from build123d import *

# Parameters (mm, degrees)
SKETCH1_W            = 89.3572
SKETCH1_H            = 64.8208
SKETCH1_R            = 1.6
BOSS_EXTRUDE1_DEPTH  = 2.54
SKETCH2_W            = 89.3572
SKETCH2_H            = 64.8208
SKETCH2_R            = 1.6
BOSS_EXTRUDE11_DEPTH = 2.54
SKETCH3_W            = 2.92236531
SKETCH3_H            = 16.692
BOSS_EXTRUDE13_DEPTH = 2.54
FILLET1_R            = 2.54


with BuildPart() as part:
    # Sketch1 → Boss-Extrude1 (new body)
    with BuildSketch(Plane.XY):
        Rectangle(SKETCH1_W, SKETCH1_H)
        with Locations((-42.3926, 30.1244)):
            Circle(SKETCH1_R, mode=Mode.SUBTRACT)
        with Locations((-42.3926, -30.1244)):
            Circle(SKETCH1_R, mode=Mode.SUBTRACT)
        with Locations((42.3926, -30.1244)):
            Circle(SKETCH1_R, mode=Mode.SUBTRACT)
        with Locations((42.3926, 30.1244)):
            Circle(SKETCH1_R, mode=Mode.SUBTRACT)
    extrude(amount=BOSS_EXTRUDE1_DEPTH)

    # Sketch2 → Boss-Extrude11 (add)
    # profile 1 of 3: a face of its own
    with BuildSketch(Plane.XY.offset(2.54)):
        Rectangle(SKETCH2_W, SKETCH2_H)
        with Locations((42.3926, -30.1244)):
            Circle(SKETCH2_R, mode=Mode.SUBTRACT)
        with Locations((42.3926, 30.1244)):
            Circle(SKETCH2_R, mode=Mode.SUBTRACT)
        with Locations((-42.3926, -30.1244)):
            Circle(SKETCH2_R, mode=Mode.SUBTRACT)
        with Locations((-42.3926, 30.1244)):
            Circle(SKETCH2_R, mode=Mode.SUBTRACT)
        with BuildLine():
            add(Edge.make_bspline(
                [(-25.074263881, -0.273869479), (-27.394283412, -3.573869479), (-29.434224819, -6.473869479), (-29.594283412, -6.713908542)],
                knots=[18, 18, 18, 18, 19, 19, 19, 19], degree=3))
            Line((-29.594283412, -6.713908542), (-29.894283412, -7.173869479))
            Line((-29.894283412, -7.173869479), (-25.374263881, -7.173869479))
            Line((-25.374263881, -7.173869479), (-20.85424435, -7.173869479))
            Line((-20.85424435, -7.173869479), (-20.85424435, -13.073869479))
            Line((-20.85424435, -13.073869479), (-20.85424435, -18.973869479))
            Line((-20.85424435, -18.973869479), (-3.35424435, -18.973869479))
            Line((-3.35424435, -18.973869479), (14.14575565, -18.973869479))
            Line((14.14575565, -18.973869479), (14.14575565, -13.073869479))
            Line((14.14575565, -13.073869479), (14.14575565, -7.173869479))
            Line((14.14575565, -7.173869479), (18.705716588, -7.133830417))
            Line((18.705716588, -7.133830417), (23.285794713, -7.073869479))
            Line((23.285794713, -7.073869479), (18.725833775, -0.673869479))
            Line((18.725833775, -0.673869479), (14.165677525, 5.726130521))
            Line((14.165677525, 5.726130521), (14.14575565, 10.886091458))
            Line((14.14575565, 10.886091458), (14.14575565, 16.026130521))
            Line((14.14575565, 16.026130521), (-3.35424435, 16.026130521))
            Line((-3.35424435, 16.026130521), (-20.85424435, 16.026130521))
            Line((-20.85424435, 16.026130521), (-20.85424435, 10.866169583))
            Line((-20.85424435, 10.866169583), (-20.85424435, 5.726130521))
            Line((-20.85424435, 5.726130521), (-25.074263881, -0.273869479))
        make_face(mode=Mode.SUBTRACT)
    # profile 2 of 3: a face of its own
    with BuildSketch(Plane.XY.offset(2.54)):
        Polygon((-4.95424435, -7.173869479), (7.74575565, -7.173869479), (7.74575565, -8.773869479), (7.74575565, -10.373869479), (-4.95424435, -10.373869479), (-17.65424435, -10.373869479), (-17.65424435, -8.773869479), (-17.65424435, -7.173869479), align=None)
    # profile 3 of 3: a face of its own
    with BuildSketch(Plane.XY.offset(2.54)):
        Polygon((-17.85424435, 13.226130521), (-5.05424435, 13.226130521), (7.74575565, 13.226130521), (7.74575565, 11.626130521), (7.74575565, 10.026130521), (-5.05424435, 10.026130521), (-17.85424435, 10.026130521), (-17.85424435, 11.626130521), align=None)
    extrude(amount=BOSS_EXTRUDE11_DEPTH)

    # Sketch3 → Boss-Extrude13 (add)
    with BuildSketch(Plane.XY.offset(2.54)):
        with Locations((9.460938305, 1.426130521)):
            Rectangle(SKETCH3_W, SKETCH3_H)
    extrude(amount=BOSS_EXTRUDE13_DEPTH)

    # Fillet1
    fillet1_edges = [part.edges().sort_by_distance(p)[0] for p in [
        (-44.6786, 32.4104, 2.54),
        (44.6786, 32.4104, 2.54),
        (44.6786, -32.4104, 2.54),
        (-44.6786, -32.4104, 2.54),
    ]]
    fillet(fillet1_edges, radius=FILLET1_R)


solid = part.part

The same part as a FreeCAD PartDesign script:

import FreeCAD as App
import Part
import Sketcher
from FreeCAD import Vector


def edges_at(feature, points):
    """Names of the edges that pass closest to the given points."""
    edges = feature.Shape.Edges
    near = lambda p: min(range(len(edges)), key=lambda i: edges[i].distToShape(Part.Vertex(*p))[0])
    return sorted({f"Edge{near(p) + 1}" for p in points})

doc = App.newDocument("Part")
params = doc.addObject("Spreadsheet::Sheet", "Params")
for row, (alias, value) in enumerate([
    ("sketch1_diameter", "3.2 mm"),
    ("pad1_length", "2.54 mm"),
    ("sketch2_diameter", "3.2 mm"),
    ("sketch2_width", "35 mm"),
    ("sketch2_width2", "25.4 mm"),
    ("sketch2_width3", "25.6 mm"),
    ("sketch2_height", "10.3 mm"),
    ("pad2_length", "2.54 mm"),
    ("pad3_length", "2.54 mm"),
    ("fillet_radius", "2.54 mm"),
], start=1):
    params.set(f"A{row}", alias)
    params.set(f"B{row}", "=" + value)
    params.setAlias(f"B{row}", alias)

body = doc.addObject("PartDesign::Body", "Body")

# Sketch on XY plane
sketch1 = body.newObject("Sketcher::SketchObject", "Sketch")
sketch1.AttachmentSupport = (doc.getObject("XY_Plane"), [""])
sketch1.MapMode = "FlatFace"
sketch1.addGeometry(Part.LineSegment(Vector(-44.7, 32.4, 0), Vector(-44.7, -32.4, 0)), False)
sketch1.addGeometry(Part.LineSegment(Vector(-44.7, -32.4, 0), Vector(44.7, -32.4, 0)), False)
sketch1.addGeometry(Part.LineSegment(Vector(44.7, -32.4, 0), Vector(44.7, 32.4, 0)), False)
sketch1.addGeometry(Part.LineSegment(Vector(44.7, 32.4, 0), Vector(-44.7, 32.4, 0)), False)
sketch1.addGeometry(Part.Circle(Vector(-42.4, -30.1, 0), Vector(0, 0, 1), 1.6), False)
sketch1.addGeometry(Part.Circle(Vector(42.4, -30.1, 0), Vector(0, 0, 1), 1.6), False)
sketch1.addGeometry(Part.Circle(Vector(-42.4, 30.1, 0), Vector(0, 0, 1), 1.6), False)
sketch1.addGeometry(Part.Circle(Vector(42.4, 30.1, 0), Vector(0, 0, 1), 1.6), False)
sketch1.addConstraint(Sketcher.Constraint("Coincident", 0, 2, 1, 1))
sketch1.addConstraint(Sketcher.Constraint("Coincident", 1, 2, 2, 1))
sketch1.addConstraint(Sketcher.Constraint("Coincident", 2, 2, 3, 1))
sketch1.addConstraint(Sketcher.Constraint("Coincident", 3, 2, 0, 1))
sketch1.addConstraint(Sketcher.Constraint("Vertical", 0))
sketch1.addConstraint(Sketcher.Constraint("Horizontal", 1))
sketch1.addConstraint(Sketcher.Constraint("Vertical", 2))
sketch1.addConstraint(Sketcher.Constraint("Horizontal", 3))
sketch1.addConstraint(Sketcher.Constraint("Equal", 4, 5))
sketch1.addConstraint(Sketcher.Constraint("Equal", 5, 6))
sketch1.addConstraint(Sketcher.Constraint("Equal", 6, 7))
sketch1.addConstraint(Sketcher.Constraint("Symmetric", 5, 3, 6, 3, -1, 1))
sketch1.addConstraint(Sketcher.Constraint("Symmetric", 4, 3, 7, 3, -1, 1))
sketch1.addConstraint(Sketcher.Constraint("Symmetric", 0, 2, 2, 2, -1, 1))
sketch1.addConstraint(Sketcher.Constraint("Symmetric", 4, 3, 5, 3, -2))
sketch1.addConstraint(Sketcher.Constraint("Diameter", 4, 3.2))
sketch1.addConstraint(Sketcher.Constraint("DistanceX", 1, 1, 1, 2, 89.3572))
sketch1.addConstraint(Sketcher.Constraint("DistanceY", 0, 2, 0, 1, 64.8208))
sketch1.addConstraint(Sketcher.Constraint("DistanceX", 0, 2, 4, 3, 2.286))
sketch1.addConstraint(Sketcher.Constraint("DistanceY", 0, 2, 4, 3, 2.286))
sketch1.setExpression("Constraints[15]", "Params.sketch1_diameter")
pad1 = body.newObject("PartDesign::Pad", "Pad")
pad1.Profile = sketch1
pad1.setExpression("Length", "Params.pad1_length")

# Sketch on XY plane
sketch2 = body.newObject("Sketcher::SketchObject", "Sketch001")
sketch2.AttachmentSupport = (doc.getObject("XY_Plane"), [""])
sketch2.MapMode = "FlatFace"
sketch2.AttachmentOffset = App.Placement(Vector(0, 0, 2.54), App.Rotation())
sketch2.addGeometry(Part.LineSegment(Vector(-44.6786, 32.4104, 0), Vector(-44.6786, -32.4104, 0)), False)
sketch2.addGeometry(Part.LineSegment(Vector(-44.6786, -32.4104, 0), Vector(44.6786, -32.4104, 0)), False)
sketch2.addGeometry(Part.LineSegment(Vector(44.6786, -32.4104, 0), Vector(44.6786, 32.4104, 0)), False)
sketch2.addGeometry(Part.LineSegment(Vector(44.6786, 32.4104, 0), Vector(-44.6786, 32.4104, 0)), False)
sketch2.addGeometry(Part.Circle(Vector(-42.3926, -30.1244, 0), Vector(0, 0, 1), 1.6), False)
sketch2.addGeometry(Part.BSplineCurve([Vector(-25.074264, -0.273869, 0), Vector(-27.394283, -3.573869, 0), Vector(-29.434225, -6.473869, 0), Vector(-29.594283, -6.713909, 0)], [4, 4], [18, 19], False, 3, [1, 1, 1, 1], False), False)
sketch2.addGeometry(Part.LineSegment(Vector(-25.074264, -0.273869, 0), Vector(-20.854244, 5.726131, 0)), False)
sketch2.addGeometry(Part.LineSegment(Vector(-20.854244, 5.726131, 0), Vector(-20.854244, 16.026131, 0)), False)
sketch2.addGeometry(Part.LineSegment(Vector(-20.854244, 16.026131, 0), Vector(14.145756, 16.026131, 0)), False)
sketch2.addGeometry(Part.LineSegment(Vector(14.145756, 16.026131, 0), Vector(14.145756, 10.886091, 0)), False)
sketch2.addGeometry(Part.LineSegment(Vector(14.145756, 10.886091, 0), Vector(14.165678, 5.726131, 0)), False)
sketch2.addGeometry(Part.LineSegment(Vector(14.165678, 5.726131, 0), Vector(18.725834, -0.673869, 0)), False)
sketch2.addGeometry(Part.LineSegment(Vector(18.725834, -0.673869, 0), Vector(23.285795, -7.073869, 0)), False)
sketch2.addGeometry(Part.LineSegment(Vector(23.285795, -7.073869, 0), Vector(18.705717, -7.13383, 0)), False)
sketch2.addGeometry(Part.LineSegment(Vector(18.705717, -7.13383, 0), Vector(14.145756, -7.173869, 0)), False)
sketch2.addGeometry(Part.LineSegment(Vector(14.145756, -7.173869, 0), Vector(14.145756, -18.973869, 0)), False)
sketch2.addGeometry(Part.LineSegment(Vector(14.145756, -18.973869, 0), Vector(-20.854244, -18.973869, 0)), False)
sketch2.addGeometry(Part.LineSegment(Vector(-20.854244, -18.973869, 0), Vector(-20.854244, -7.173869, 0)), False)
sketch2.addGeometry(Part.LineSegment(Vector(-20.854244, -7.173869, 0), Vector(-29.894283, -7.173869, 0)), False)
sketch2.addGeometry(Part.LineSegment(Vector(-29.894283, -7.173869, 0), Vector(-29.594283, -6.713909, 0)), False)
sketch2.addGeometry(Part.Circle(Vector(42.3926, -30.1244, 0), Vector(0, 0, 1), 1.6), False)
sketch2.addGeometry(Part.Circle(Vector(-42.3926, 30.1244, 0), Vector(0, 0, 1), 1.6), False)
sketch2.addGeometry(Part.Circle(Vector(42.3926, 30.1244, 0), Vector(0, 0, 1), 1.6), False)
sketch2.addGeometry(Part.LineSegment(Vector(7.745756, -7.173869, 0), Vector(-17.654244, -7.173869, 0)), False)
sketch2.addGeometry(Part.LineSegment(Vector(-17.654244, -7.173869, 0), Vector(-17.654244, -10.373869, 0)), False)
sketch2.addGeometry(Part.LineSegment(Vector(-17.654244, -10.373869, 0), Vector(7.745756, -10.373869, 0)), False)
sketch2.addGeometry(Part.LineSegment(Vector(7.745756, -10.373869, 0), Vector(7.745756, -7.173869, 0)), False)
sketch2.addGeometry(Part.LineSegment(Vector(7.745756, 13.226131, 0), Vector(-17.854244, 13.226131, 0)), False)
sketch2.addGeometry(Part.LineSegment(Vector(-17.854244, 13.226131, 0), Vector(-17.854244, 10.026131, 0)), False)
sketch2.addGeometry(Part.LineSegment(Vector(-17.854244, 10.026131, 0), Vector(7.745756, 10.026131, 0)), False)
sketch2.addGeometry(Part.LineSegment(Vector(7.745756, 10.026131, 0), Vector(7.745756, 13.226131, 0)), False)
sketch2.addConstraint(Sketcher.Constraint("Block", 5))
sketch2.addConstraint(Sketcher.Constraint("Coincident", 0, 2, 1, 1))
sketch2.addConstraint(Sketcher.Constraint("Coincident", 1, 2, 2, 1))
sketch2.addConstraint(Sketcher.Constraint("Coincident", 2, 2, 3, 1))
sketch2.addConstraint(Sketcher.Constraint("Coincident", 3, 2, 0, 1))
sketch2.addConstraint(Sketcher.Constraint("Coincident", 5, 1, 6, 1))
sketch2.addConstraint(Sketcher.Constraint("Coincident", 6, 2, 7, 1))
sketch2.addConstraint(Sketcher.Constraint("Coincident", 7, 2, 8, 1))
sketch2.addConstraint(Sketcher.Constraint("Coincident", 8, 2, 9, 1))
sketch2.addConstraint(Sketcher.Constraint("Coincident", 9, 2, 10, 1))
sketch2.addConstraint(Sketcher.Constraint("Coincident", 10, 2, 11, 1))
sketch2.addConstraint(Sketcher.Constraint("Coincident", 11, 2, 12, 1))
sketch2.addConstraint(Sketcher.Constraint("Coincident", 12, 2, 13, 1))
sketch2.addConstraint(Sketcher.Constraint("Coincident", 13, 2, 14, 1))
sketch2.addConstraint(Sketcher.Constraint("Coincident", 14, 2, 15, 1))
sketch2.addConstraint(Sketcher.Constraint("Coincident", 15, 2, 16, 1))
sketch2.addConstraint(Sketcher.Constraint("Coincident", 16, 2, 17, 1))
sketch2.addConstraint(Sketcher.Constraint("Coincident", 17, 2, 18, 1))
sketch2.addConstraint(Sketcher.Constraint("Coincident", 18, 2, 19, 1))
sketch2.addConstraint(Sketcher.Constraint("Coincident", 19, 2, 5, 2))
sketch2.addConstraint(Sketcher.Constraint("Coincident", 23, 2, 24, 1))
sketch2.addConstraint(Sketcher.Constraint("Coincident", 24, 2, 25, 1))
sketch2.addConstraint(Sketcher.Constraint("Coincident", 25, 2, 26, 1))
sketch2.addConstraint(Sketcher.Constraint("Coincident", 26, 2, 23, 1))
sketch2.addConstraint(Sketcher.Constraint("Coincident", 27, 2, 28, 1))
sketch2.addConstraint(Sketcher.Constraint("Coincident", 28, 2, 29, 1))
sketch2.addConstraint(Sketcher.Constraint("Coincident", 29, 2, 30, 1))
sketch2.addConstraint(Sketcher.Constraint("Coincident", 30, 2, 27, 1))
sketch2.addConstraint(Sketcher.Constraint("Vertical", 0))
sketch2.addConstraint(Sketcher.Constraint("Horizontal", 1))
sketch2.addConstraint(Sketcher.Constraint("Vertical", 2))
sketch2.addConstraint(Sketcher.Constraint("Horizontal", 3))
sketch2.addConstraint(Sketcher.Constraint("Vertical", 7))
sketch2.addConstraint(Sketcher.Constraint("Horizontal", 8))
sketch2.addConstraint(Sketcher.Constraint("Vertical", 9))
sketch2.addConstraint(Sketcher.Constraint("Vertical", 15))
sketch2.addConstraint(Sketcher.Constraint("Horizontal", 16))
sketch2.addConstraint(Sketcher.Constraint("Vertical", 17))
sketch2.addConstraint(Sketcher.Constraint("Horizontal", 18))
sketch2.addConstraint(Sketcher.Constraint("Horizontal", 23))
sketch2.addConstraint(Sketcher.Constraint("Vertical", 24))
sketch2.addConstraint(Sketcher.Constraint("Horizontal", 25))
sketch2.addConstraint(Sketcher.Constraint("Vertical", 26))
sketch2.addConstraint(Sketcher.Constraint("Horizontal", 27))
sketch2.addConstraint(Sketcher.Constraint("Vertical", 28))
sketch2.addConstraint(Sketcher.Constraint("Horizontal", 29))
sketch2.addConstraint(Sketcher.Constraint("Vertical", 30))
sketch2.addConstraint(Sketcher.Constraint("Equal", 4, 20))
sketch2.addConstraint(Sketcher.Constraint("Equal", 20, 21))
sketch2.addConstraint(Sketcher.Constraint("Equal", 21, 22))
sketch2.addConstraint(Sketcher.Constraint("Symmetric", 20, 3, 21, 3, -1, 1))
sketch2.addConstraint(Sketcher.Constraint("Symmetric", 4, 3, 22, 3, -1, 1))
sketch2.addConstraint(Sketcher.Constraint("Symmetric", 0, 2, 2, 2, -1, 1))
sketch2.addConstraint(Sketcher.Constraint("Symmetric", 4, 3, 20, 3, -2))
sketch2.addConstraint(Sketcher.Constraint("Horizontal", 6, 2, 10, 2))
sketch2.addConstraint(Sketcher.Constraint("Horizontal", 14, 2, 17, 2))
sketch2.addConstraint(Sketcher.Constraint("Horizontal", 18, 2, 23, 2))
sketch2.addConstraint(Sketcher.Constraint("Vertical", 9, 2, 14, 2))
sketch2.addConstraint(Sketcher.Constraint("Vertical", 7, 2, 16, 2))
sketch2.addConstraint(Sketcher.Constraint("Vertical", 26, 2, 29, 2))
sketch2.addConstraint(Sketcher.Constraint("Equal", 26, 28))
sketch2.addConstraint(Sketcher.Constraint("Diameter", 4, 3.2))
sketch2.addConstraint(Sketcher.Constraint("DistanceX", 8, 1, 8, 2, 35.0))
sketch2.addConstraint(Sketcher.Constraint("DistanceX", 23, 2, 23, 1, 25.4))
sketch2.addConstraint(Sketcher.Constraint("DistanceX", 27, 2, 27, 1, 25.6))
sketch2.addConstraint(Sketcher.Constraint("DistanceY", 7, 1, 7, 2, 10.3))
sketch2.addConstraint(Sketcher.Constraint("DistanceY", 15, 2, 15, 1, 11.8))
sketch2.addConstraint(Sketcher.Constraint("DistanceY", 24, 2, 24, 1, 3.2))
sketch2.addConstraint(Sketcher.Constraint("DistanceY", 16, 2, 7, 2, 35.0))
sketch2.addConstraint(Sketcher.Constraint("DistanceX", 7, 2, 27, 2, 3.0))
sketch2.addConstraint(Sketcher.Constraint("DistanceY", 28, 2, 7, 2, 6.0))
sketch2.addConstraint(Sketcher.Constraint("DistanceY", 11, 2, 10, 2, 6.4))
sketch2.addConstraint(Sketcher.Constraint("DistanceY", 12, 2, 11, 2, 6.4))
sketch2.addConstraint(Sketcher.Constraint("DistanceX", 18, 2, 19, 2, 0.3))
sketch2.addConstraint(Sketcher.Constraint("Distance", 10, 5.159999))
sketch2.addConstraint(Sketcher.Constraint("DistanceX", 1, 1, 1, 2, 89.3572))
sketch2.addConstraint(Sketcher.Constraint("DistanceY", 0, 2, 0, 1, 64.8208))
sketch2.addConstraint(Sketcher.Constraint("DistanceX", 0, 2, 4, 3, 2.286))
sketch2.addConstraint(Sketcher.Constraint("DistanceY", 0, 2, 4, 3, 2.286))
sketch2.addConstraint(Sketcher.Constraint("DistanceX", 18, 2, 18, 1, 9.040039))
sketch2.addConstraint(Sketcher.Constraint("Distance", 13, 4.580471))
sketch2.addConstraint(Sketcher.Constraint("Distance", 19, 0.549148))
sketch2.addConstraint(Sketcher.Constraint("DistanceY", -1, 1, 9, 2, 10.886091))
sketch2.addConstraint(Sketcher.Constraint("DistanceY", 13, 2, -1, 1, 7.13383))
sketch2.addConstraint(Sketcher.Constraint("DistanceX", 9, 2, 11, 2, 4.580078))
sketch2.addConstraint(Sketcher.Constraint("DistanceX", 11, 2, 12, 2, 4.559961))
sketch2.setExpression("Constraints[61]", "Params.sketch2_diameter")
sketch2.setExpression("Constraints[62]", "Params.sketch2_width")
sketch2.setExpression("Constraints[63]", "Params.sketch2_width2")
sketch2.setExpression("Constraints[64]", "Params.sketch2_width3")
sketch2.setExpression("Constraints[65]", "Params.sketch2_height")
pad2 = body.newObject("PartDesign::Pad", "Pad001")
pad2.Profile = sketch2
pad2.setExpression("Length", "Params.pad2_length")

# Sketch on XY plane
sketch3 = body.newObject("Sketcher::SketchObject", "Sketch002")
sketch3.AttachmentSupport = (doc.getObject("XY_Plane"), [""])
sketch3.MapMode = "FlatFace"
sketch3.AttachmentOffset = App.Placement(Vector(0, 0, 2.54), App.Rotation())
sketch3.addGeometry(Part.LineSegment(Vector(8, 9.8, 0), Vector(8, -6.9, 0)), False)
sketch3.addGeometry(Part.LineSegment(Vector(8, -6.9, 0), Vector(10.9, -6.9, 0)), False)
sketch3.addGeometry(Part.LineSegment(Vector(10.9, -6.9, 0), Vector(10.9, 9.8, 0)), False)
sketch3.addGeometry(Part.LineSegment(Vector(10.9, 9.8, 0), Vector(8, 9.8, 0)), False)
sketch3.addConstraint(Sketcher.Constraint("Coincident", 0, 2, 1, 1))
sketch3.addConstraint(Sketcher.Constraint("Coincident", 1, 2, 2, 1))
sketch3.addConstraint(Sketcher.Constraint("Coincident", 2, 2, 3, 1))
sketch3.addConstraint(Sketcher.Constraint("Coincident", 3, 2, 0, 1))
sketch3.addConstraint(Sketcher.Constraint("Vertical", 0))
sketch3.addConstraint(Sketcher.Constraint("Horizontal", 1))
sketch3.addConstraint(Sketcher.Constraint("Vertical", 2))
sketch3.addConstraint(Sketcher.Constraint("Horizontal", 3))
sketch3.addConstraint(Sketcher.Constraint("DistanceY", 0, 2, 0, 1, 16.692))
sketch3.addConstraint(Sketcher.Constraint("DistanceX", 1, 1, 1, 2, 2.922365))
sketch3.addConstraint(Sketcher.Constraint("DistanceY", 0, 2, -1, 1, 6.919869))
sketch3.addConstraint(Sketcher.Constraint("DistanceX", -1, 1, 1, 2, 10.922121))
pad3 = body.newObject("PartDesign::Pad", "Pad002")
pad3.Profile = sketch3
pad3.setExpression("Length", "Params.pad3_length")
doc.recompute()

fillet = body.newObject("PartDesign::Fillet", "Fillet")
fillet.Base = (pad3, edges_at(pad3, [
    (-44.679, 32.41, 2.54),
    (44.679, 32.41, 2.54),
    (44.679, -32.41, 2.54),
    (-44.679, -32.41, 2.54),
]))
fillet.setExpression("Radius", "Params.fillet_radius")

doc.recompute()
